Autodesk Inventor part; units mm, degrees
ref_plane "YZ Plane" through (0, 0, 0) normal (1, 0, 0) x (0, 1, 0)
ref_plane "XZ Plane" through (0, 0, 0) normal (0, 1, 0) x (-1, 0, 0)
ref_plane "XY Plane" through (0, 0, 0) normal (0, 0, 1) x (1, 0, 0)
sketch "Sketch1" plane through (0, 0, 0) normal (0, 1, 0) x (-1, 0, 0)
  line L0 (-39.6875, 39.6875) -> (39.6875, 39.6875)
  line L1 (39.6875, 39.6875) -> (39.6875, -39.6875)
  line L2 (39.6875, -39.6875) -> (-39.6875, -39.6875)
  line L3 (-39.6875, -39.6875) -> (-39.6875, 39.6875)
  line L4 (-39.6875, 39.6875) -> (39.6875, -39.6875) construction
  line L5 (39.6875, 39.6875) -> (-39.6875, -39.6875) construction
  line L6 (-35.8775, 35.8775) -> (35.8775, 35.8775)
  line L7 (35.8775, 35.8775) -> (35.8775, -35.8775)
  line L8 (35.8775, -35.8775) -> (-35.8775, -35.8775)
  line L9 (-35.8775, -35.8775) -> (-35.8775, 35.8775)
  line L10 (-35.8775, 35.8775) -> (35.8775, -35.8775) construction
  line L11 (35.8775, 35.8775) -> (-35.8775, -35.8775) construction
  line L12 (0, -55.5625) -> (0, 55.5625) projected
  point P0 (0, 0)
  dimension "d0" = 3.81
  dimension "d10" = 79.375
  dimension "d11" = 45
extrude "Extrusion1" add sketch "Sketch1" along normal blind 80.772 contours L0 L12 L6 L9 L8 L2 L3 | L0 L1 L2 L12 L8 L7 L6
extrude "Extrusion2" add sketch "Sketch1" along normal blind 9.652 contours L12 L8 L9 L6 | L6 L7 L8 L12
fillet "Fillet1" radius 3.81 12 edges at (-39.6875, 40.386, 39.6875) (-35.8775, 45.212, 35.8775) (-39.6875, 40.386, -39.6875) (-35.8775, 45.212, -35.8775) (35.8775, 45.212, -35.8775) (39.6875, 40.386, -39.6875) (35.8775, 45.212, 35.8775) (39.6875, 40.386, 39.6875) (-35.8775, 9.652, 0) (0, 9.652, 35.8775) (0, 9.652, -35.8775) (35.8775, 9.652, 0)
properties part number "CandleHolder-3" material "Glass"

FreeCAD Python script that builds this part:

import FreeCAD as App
import Part
import Sketcher

V = App.Vector
Q = App.Units.Quantity


def edges_at(feature, points):
    """Names of the edges that pass closest to the given points."""
    edges = feature.Shape.Edges
    near = lambda p: min(range(len(edges)), key=lambda i: edges[i].distToShape(Part.Vertex(*p))[0])
    return sorted({f"Edge{near(p) + 1}" for p in points})


def add_polygon(sketch, points):
    """Adds a closed chain of lines whose ends are joined by coincident constraints."""
    first, n = sketch.GeometryCount, len(points)
    for a, b in zip(points, points[1:] + points[:1]):
        sketch.addGeometry(Part.LineSegment(App.Vector(*a, 0), App.Vector(*b, 0)), False)
    for i in range(n):
        sketch.addConstraint(Sketcher.Constraint("Coincident", first + i, 2, first + (i + 1) % n, 1))

doc = App.newDocument("Part")
body = doc.addObject("PartDesign::Body", "Body")

# Sketch on XZ plane
sketch1 = body.newObject("Sketcher::SketchObject", "Sketch")
sketch1.AttachmentSupport = (doc.getObject("XZ_Plane"), [""])
sketch1.MapMode = "FlatFace"
add_polygon(sketch1, [(40, 40), (40, -40), (-40, -40), (-40, 40)])  # lines 0-3
add_polygon(sketch1, [(36, 36), (-36, 36), (-36, -36), (36, -36)])  # lines 4-7
sketch1.addConstraint([
    Sketcher.Constraint("Vertical", 0),
    Sketcher.Constraint("Horizontal", 1),
    Sketcher.Constraint("Vertical", 2),
    Sketcher.Constraint("Horizontal", 3),
    Sketcher.Constraint("Horizontal", 4),
    Sketcher.Constraint("Vertical", 5),
    Sketcher.Constraint("Horizontal", 6),
    Sketcher.Constraint("Vertical", 7),
    Sketcher.Constraint("Symmetric", 0, 2, 2, 2, -1, 1),
    Sketcher.Constraint("Symmetric", 4, 2, 6, 2, -1, 1),
    Sketcher.Constraint("Equal", 3, 0),
    Sketcher.Constraint("Equal", 6, 5),
    Sketcher.Constraint("DistanceX", 1, 2, 1, 1, Q("3.125 in")),
    Sketcher.Constraint("DistanceX", 2, 2, 4, 2, Q("0.15 in")),
])
pad1 = body.newObject("PartDesign::Pad", "Pad")
pad1.Profile = sketch1
pad1.Length = Q("3.18 in")
pad1.Reversed = True

# Sketch on XZ plane
sketch2 = body.newObject("Sketcher::SketchObject", "Sketch001")
sketch2.AttachmentSupport = (doc.getObject("XZ_Plane"), [""])
sketch2.MapMode = "FlatFace"
add_polygon(sketch2, [(36, -36), (-36, -36), (-36, 36), (36, 36)])  # lines 0-3
sketch2.addConstraint([
    Sketcher.Constraint("Horizontal", 0),
    Sketcher.Constraint("Vertical", 1),
    Sketcher.Constraint("Horizontal", 2),
    Sketcher.Constraint("Vertical", 3),
    Sketcher.Constraint("Symmetric", 0, 2, 2, 2, -1, 1),
    Sketcher.Constraint("Equal", 2, 1),
    Sketcher.Constraint("DistanceX", 0, 2, 0, 1, Q("2.825 in")),
])
pad2 = body.newObject("PartDesign::Pad", "Pad001")
pad2.Profile = sketch2
pad2.Length = Q("0.38 in")
pad2.Reversed = True
doc.recompute()

fillet = body.newObject("PartDesign::Fillet", "Fillet")
fillet.Base = (pad2, edges_at(pad2, [
    (-39.688, 40.386, 39.688),
    (-35.877, 45.212, 35.877),
    (-39.688, 40.386, -39.688),
    (-35.877, 45.212, -35.877),
    (35.877, 45.212, -35.877),
    (39.688, 40.386, -39.688),
    (35.877, 45.212, 35.877),
    (39.688, 40.386, 39.688),
    (-35.877, 9.652, 0),
    (0, 9.652, 35.877),
    (0, 9.652, -35.877),
    (35.877, 9.652, 0),
]))
fillet.Radius = Q("0.15 in")

doc.recompute()
